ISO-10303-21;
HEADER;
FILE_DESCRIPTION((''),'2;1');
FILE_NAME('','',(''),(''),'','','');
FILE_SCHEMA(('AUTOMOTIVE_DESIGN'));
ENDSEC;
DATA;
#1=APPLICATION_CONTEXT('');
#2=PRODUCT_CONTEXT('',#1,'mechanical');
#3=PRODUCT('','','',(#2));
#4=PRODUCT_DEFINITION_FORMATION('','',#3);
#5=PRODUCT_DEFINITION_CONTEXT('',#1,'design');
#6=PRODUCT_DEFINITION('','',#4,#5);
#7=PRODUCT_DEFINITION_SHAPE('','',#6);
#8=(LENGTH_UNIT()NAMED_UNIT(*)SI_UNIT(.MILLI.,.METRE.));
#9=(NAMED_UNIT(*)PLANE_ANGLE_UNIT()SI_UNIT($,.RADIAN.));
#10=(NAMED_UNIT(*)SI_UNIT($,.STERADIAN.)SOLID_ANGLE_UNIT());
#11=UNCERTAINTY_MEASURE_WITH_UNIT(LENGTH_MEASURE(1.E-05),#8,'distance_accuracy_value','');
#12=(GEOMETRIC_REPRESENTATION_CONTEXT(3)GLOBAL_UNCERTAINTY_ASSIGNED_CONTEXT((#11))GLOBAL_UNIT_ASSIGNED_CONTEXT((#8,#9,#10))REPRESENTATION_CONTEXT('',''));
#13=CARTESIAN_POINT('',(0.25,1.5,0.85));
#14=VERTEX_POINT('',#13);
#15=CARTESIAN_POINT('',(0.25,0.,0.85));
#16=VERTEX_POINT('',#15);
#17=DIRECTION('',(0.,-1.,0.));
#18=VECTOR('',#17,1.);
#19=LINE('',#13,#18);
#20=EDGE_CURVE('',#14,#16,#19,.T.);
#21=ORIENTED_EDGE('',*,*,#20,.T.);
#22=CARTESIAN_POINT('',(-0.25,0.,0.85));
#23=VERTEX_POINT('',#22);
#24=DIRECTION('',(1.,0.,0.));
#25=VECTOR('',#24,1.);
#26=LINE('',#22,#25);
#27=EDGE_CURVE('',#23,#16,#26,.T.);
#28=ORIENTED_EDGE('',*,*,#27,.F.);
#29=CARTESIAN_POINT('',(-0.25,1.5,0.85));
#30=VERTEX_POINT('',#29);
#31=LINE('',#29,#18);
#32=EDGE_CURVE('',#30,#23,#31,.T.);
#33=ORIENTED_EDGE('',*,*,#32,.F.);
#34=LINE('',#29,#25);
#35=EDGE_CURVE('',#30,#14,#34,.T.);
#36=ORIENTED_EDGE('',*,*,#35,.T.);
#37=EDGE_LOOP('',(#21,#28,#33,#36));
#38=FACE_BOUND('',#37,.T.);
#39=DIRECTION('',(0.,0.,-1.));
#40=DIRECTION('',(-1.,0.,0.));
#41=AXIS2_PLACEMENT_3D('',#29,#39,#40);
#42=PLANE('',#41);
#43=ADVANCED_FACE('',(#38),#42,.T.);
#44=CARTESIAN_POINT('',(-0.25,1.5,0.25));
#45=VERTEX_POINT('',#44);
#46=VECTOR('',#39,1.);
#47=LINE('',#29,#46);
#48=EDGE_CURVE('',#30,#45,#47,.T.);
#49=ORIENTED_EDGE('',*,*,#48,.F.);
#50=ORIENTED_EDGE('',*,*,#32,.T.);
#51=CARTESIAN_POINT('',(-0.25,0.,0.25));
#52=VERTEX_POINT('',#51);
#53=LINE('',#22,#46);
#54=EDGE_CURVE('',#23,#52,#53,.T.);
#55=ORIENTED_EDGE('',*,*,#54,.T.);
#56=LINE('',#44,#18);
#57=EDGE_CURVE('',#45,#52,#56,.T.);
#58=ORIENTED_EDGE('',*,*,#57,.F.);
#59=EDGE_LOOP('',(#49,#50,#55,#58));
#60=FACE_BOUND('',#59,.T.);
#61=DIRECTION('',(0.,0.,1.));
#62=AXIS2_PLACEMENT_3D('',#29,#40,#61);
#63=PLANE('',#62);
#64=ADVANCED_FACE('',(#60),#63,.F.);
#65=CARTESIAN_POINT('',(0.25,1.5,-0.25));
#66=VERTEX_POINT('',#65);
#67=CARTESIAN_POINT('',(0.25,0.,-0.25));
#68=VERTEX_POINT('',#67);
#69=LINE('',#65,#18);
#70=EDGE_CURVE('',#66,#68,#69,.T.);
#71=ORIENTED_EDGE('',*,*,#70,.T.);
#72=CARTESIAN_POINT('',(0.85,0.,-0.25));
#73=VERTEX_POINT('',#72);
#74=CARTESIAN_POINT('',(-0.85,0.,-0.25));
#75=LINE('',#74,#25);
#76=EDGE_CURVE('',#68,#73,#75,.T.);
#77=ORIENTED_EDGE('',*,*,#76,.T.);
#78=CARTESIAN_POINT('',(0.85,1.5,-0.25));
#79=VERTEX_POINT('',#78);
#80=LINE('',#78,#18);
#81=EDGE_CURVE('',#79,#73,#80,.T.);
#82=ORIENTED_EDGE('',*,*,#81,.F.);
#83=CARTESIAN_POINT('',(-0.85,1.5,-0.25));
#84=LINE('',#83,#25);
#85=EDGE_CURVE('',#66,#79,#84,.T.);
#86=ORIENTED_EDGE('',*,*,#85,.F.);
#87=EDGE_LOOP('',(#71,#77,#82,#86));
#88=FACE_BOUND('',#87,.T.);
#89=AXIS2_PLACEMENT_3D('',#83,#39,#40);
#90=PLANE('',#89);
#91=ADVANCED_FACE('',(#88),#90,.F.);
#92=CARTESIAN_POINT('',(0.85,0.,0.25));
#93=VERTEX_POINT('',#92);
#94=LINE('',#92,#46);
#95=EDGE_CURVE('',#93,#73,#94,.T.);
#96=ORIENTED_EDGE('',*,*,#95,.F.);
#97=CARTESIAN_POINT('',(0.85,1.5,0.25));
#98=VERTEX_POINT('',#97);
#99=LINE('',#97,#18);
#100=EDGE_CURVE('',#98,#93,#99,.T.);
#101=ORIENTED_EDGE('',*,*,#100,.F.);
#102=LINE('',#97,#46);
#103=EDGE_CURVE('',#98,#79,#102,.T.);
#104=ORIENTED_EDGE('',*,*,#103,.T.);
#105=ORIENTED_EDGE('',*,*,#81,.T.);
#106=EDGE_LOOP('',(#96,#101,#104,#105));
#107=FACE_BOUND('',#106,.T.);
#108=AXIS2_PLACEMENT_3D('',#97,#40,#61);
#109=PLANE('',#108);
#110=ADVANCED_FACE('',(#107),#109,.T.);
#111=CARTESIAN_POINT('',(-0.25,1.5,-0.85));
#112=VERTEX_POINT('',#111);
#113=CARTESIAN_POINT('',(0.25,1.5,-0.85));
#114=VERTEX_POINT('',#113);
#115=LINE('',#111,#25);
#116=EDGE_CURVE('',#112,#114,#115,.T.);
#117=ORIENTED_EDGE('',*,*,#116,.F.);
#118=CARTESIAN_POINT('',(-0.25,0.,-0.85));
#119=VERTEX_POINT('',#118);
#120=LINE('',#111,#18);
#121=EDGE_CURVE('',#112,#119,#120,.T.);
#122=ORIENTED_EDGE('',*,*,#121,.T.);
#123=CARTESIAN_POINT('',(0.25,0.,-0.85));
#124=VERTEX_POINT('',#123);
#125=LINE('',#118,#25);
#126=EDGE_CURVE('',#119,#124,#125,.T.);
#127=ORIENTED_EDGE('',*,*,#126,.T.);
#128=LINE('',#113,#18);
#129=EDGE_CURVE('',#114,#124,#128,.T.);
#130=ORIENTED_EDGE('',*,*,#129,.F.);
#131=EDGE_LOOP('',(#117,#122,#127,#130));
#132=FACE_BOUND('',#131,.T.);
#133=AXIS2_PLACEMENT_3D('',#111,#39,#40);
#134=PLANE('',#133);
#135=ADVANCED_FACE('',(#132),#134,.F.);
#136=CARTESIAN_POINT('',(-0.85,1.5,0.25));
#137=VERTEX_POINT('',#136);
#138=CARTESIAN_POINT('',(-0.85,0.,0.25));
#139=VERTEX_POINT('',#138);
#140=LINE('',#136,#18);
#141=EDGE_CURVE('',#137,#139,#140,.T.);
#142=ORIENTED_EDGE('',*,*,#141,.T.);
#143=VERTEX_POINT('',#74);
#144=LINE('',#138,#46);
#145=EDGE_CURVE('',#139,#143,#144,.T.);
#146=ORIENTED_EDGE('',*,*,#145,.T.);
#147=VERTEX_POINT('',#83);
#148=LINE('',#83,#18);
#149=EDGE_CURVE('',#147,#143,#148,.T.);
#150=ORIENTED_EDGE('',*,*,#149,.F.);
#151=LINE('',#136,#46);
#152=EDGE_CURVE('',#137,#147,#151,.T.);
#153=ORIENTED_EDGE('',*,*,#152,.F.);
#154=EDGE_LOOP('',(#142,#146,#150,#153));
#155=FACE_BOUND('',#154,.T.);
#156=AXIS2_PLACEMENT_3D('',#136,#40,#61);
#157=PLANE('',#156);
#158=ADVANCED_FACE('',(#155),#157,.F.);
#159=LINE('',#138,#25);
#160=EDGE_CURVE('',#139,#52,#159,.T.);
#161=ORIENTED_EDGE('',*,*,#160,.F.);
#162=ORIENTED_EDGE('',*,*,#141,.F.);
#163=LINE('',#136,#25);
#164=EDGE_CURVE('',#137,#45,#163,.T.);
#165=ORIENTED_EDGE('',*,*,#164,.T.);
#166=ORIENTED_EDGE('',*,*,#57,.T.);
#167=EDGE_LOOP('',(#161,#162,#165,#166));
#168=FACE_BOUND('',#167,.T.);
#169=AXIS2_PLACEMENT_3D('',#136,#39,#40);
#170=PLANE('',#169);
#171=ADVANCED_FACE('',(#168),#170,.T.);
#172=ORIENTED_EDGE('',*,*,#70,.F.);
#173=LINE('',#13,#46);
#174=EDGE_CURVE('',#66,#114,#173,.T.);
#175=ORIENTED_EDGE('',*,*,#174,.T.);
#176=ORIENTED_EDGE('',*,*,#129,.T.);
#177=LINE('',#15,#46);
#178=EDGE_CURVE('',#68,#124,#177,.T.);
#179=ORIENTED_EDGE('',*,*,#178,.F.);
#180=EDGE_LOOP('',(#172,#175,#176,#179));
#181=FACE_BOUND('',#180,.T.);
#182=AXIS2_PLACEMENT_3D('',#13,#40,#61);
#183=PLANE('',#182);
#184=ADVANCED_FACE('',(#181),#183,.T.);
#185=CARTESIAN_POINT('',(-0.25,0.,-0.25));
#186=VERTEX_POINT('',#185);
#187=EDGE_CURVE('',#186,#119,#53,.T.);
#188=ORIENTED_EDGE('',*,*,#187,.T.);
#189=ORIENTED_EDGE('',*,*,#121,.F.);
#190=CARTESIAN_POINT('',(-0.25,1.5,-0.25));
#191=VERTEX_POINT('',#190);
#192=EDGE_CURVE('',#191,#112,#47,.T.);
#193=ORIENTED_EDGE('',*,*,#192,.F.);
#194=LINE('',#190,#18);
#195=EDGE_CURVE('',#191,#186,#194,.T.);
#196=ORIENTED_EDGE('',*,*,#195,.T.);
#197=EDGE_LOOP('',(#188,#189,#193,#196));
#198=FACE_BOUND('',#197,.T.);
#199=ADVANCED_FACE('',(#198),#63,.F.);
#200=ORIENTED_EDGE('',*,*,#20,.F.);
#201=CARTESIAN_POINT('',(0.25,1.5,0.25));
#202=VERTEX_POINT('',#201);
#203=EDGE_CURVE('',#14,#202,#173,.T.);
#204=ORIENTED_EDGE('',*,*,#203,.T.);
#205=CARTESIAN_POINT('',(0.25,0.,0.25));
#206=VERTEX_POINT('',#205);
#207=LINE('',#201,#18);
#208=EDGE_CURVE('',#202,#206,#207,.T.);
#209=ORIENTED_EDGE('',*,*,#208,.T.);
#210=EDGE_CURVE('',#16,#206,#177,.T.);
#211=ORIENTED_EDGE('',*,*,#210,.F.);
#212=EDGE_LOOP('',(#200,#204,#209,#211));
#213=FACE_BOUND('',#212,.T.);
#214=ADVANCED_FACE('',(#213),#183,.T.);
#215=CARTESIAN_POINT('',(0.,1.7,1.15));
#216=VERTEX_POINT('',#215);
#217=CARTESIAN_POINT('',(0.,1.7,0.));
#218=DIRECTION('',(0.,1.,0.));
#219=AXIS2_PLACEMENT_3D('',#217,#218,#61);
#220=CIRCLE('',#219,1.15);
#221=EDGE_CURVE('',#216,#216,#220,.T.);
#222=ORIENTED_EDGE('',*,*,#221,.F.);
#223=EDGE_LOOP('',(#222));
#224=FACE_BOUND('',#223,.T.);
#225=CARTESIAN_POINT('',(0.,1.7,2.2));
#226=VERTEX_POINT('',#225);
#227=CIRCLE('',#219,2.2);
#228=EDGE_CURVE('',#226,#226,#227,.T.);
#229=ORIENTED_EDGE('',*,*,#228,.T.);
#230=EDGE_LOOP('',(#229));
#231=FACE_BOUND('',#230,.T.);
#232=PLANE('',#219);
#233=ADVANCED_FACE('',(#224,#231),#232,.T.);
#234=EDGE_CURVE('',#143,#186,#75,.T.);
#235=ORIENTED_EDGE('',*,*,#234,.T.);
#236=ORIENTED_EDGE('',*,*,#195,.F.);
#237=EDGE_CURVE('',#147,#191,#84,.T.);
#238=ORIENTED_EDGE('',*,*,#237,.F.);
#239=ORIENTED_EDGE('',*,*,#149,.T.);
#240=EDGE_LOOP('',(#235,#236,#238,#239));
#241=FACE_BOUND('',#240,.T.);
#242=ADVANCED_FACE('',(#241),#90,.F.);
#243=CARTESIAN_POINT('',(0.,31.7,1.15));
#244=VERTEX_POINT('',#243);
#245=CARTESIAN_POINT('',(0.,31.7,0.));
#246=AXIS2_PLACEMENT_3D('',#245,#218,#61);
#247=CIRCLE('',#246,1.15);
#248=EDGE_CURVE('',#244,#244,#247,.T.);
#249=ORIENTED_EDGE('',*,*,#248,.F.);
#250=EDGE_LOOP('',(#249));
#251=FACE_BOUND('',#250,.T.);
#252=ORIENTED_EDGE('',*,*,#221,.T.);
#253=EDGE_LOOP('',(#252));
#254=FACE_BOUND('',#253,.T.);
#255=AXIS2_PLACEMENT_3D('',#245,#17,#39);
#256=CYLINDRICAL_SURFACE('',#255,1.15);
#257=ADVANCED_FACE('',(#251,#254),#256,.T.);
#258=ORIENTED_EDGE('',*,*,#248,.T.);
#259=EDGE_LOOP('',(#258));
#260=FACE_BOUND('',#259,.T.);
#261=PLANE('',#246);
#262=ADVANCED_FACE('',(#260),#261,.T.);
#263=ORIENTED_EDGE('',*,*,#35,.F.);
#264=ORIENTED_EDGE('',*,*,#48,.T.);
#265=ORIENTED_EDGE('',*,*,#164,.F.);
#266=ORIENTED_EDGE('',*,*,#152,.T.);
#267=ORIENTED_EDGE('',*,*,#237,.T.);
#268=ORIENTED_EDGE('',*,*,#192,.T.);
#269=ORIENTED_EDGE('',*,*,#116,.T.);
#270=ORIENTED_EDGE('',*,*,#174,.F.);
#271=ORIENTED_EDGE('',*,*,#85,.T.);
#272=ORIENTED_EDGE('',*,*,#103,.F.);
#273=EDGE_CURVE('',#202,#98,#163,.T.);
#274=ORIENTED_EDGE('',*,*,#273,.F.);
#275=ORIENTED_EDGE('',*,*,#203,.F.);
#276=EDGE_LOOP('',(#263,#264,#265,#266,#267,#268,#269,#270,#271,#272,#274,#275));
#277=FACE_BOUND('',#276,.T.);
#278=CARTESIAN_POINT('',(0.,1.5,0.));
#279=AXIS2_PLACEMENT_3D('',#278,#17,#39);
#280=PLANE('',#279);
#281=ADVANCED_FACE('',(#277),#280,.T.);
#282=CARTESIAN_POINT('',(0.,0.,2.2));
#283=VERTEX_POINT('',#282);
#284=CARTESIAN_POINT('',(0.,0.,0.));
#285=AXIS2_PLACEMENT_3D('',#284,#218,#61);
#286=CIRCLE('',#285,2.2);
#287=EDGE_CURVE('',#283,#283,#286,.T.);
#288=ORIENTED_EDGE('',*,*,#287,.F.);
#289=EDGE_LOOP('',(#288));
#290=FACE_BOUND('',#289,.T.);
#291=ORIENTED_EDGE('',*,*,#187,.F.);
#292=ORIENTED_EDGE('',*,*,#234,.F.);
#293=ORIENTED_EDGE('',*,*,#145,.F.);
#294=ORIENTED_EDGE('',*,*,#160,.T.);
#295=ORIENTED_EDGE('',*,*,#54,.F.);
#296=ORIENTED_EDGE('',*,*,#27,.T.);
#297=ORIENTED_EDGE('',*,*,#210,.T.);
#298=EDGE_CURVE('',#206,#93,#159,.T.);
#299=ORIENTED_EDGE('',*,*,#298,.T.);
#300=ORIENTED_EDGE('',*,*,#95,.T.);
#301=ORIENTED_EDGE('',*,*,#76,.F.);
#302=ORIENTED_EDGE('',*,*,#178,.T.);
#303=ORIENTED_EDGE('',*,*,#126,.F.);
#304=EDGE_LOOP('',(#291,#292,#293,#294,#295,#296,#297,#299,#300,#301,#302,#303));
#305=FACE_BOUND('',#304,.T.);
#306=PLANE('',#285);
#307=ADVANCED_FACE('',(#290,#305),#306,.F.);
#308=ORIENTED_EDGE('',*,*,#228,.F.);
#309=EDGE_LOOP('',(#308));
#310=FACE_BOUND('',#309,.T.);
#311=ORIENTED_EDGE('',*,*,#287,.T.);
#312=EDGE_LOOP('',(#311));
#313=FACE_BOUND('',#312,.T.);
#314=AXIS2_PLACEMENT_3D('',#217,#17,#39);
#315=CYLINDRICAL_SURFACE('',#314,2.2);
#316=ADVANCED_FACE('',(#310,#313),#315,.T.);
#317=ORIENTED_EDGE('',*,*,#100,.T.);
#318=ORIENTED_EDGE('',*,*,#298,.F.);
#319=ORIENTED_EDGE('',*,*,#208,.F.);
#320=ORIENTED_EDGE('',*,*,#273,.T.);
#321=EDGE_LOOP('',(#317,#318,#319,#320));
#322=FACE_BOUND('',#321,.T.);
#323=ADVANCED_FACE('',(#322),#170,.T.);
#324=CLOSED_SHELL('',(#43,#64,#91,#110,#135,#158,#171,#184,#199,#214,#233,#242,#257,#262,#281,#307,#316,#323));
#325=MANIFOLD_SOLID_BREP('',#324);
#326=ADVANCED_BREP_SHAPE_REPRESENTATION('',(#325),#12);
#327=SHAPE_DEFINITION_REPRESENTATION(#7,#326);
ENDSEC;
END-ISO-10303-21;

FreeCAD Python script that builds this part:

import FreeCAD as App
import Part
import Sketcher

doc = App.newDocument("Part")
body = doc.addObject("PartDesign::Body", "Body")

# Sketch on XZ plane
sketch1 = doc.addObject("Sketcher::SketchObject", "Sketch")
body.addObject(sketch1)
sketch1.AttachmentSupport = (doc.XZ_Plane, [""])
sketch1.MapMode = "FlatFace"
sketch1.addGeometry(Part.Circle(App.Vector(0, 0, 0), App.Vector(0, 0, 1), 2.2), False)
sketch1.addConstraint([
    Sketcher.Constraint("Coincident", 0, 3, -1, 1),
    Sketcher.Constraint("Diameter", 0, 4.4),
])
pad1 = doc.addObject("PartDesign::Pad", "Pad")
body.addObject(pad1)
pad1.Profile = sketch1
pad1.Length = 1.7
pad1.Reversed = True

# Sketch on XZ plane
sketch2 = doc.addObject("Sketcher::SketchObject", "Sketch001")
body.addObject(sketch2)
sketch2.AttachmentSupport = (doc.XZ_Plane, [""])
sketch2.MapMode = "FlatFace"
sketch2.AttachmentOffset = App.Placement(App.Vector(0, 0, -1.7), App.Rotation())
sketch2.addGeometry(Part.Circle(App.Vector(0, 0, 0), App.Vector(0, 0, 1), 1.1), False)
sketch2.addConstraint([
    Sketcher.Constraint("Coincident", 0, 3, -1, 1),
    Sketcher.Constraint("Diameter", 0, 2.3),
])
pad2 = doc.addObject("PartDesign::Pad", "Pad001")
body.addObject(pad2)
pad2.Profile = sketch2
pad2.Length = 30
pad2.Reversed = True

# Sketch on XZ plane
sketch3 = doc.addObject("Sketcher::SketchObject", "Sketch002")
body.addObject(sketch3)
sketch3.AttachmentSupport = (doc.XZ_Plane, [""])
sketch3.MapMode = "FlatFace"
sketch3.addGeometry([
    Part.LineSegment(App.Vector(-0.8, -0.2, 0), App.Vector(-0.8, 0.2, 0)),  # 0
    Part.LineSegment(App.Vector(-0.8, 0.2, 0), App.Vector(-0.2, 0.2, 0)),  # 1
    Part.LineSegment(App.Vector(-0.2, 0.2, 0), App.Vector(-0.2, 0.8, 0)),  # 2
    Part.LineSegment(App.Vector(-0.2, 0.8, 0), App.Vector(0.2, 0.8, 0)),  # 3
    Part.LineSegment(App.Vector(0.2, 0.8, 0), App.Vector(0.2, 0.2, 0)),  # 4
    Part.LineSegment(App.Vector(0.2, 0.2, 0), App.Vector(0.8, 0.2, 0)),  # 5
    Part.LineSegment(App.Vector(0.8, 0.2, 0), App.Vector(0.8, -0.2, 0)),  # 6
    Part.LineSegment(App.Vector(0.8, -0.2, 0), App.Vector(0.2, -0.2, 0)),  # 7
    Part.LineSegment(App.Vector(0.2, -0.2, 0), App.Vector(0.2, -0.8, 0)),  # 8
    Part.LineSegment(App.Vector(0.2, -0.8, 0), App.Vector(-0.2, -0.8, 0)),  # 9
    Part.LineSegment(App.Vector(-0.2, -0.8, 0), App.Vector(-0.2, -0.2, 0)),  # 10
    Part.LineSegment(App.Vector(-0.2, -0.2, 0), App.Vector(-0.8, -0.2, 0)),  # 11
], False)
sketch3.addConstraint([
    Sketcher.Constraint("Coincident", 0, 2, 1, 1),
    Sketcher.Constraint("Coincident", 1, 2, 2, 1),
    Sketcher.Constraint("Coincident", 2, 2, 3, 1),
    Sketcher.Constraint("Coincident", 3, 2, 4, 1),
    Sketcher.Constraint("Coincident", 4, 2, 5, 1),
    Sketcher.Constraint("Coincident", 5, 2, 6, 1),
    Sketcher.Constraint("Coincident", 6, 2, 7, 1),
    Sketcher.Constraint("Coincident", 7, 2, 8, 1),
    Sketcher.Constraint("Coincident", 8, 2, 9, 1),
    Sketcher.Constraint("Coincident", 9, 2, 10, 1),
    Sketcher.Constraint("Coincident", 10, 2, 11, 1),
    Sketcher.Constraint("Coincident", 11, 2, 0, 1),
    Sketcher.Constraint("Vertical", 0),
    Sketcher.Constraint("Horizontal", 1),
    Sketcher.Constraint("Vertical", 2),
    Sketcher.Constraint("Horizontal", 3),
    Sketcher.Constraint("Vertical", 4),
    Sketcher.Constraint("Horizontal", 5),
    Sketcher.Constraint("Vertical", 6),
    Sketcher.Constraint("Horizontal", 7),
    Sketcher.Constraint("Vertical", 8),
    Sketcher.Constraint("Horizontal", 9),
    Sketcher.Constraint("Vertical", 10),
    Sketcher.Constraint("Horizontal", 11),
    Sketcher.Constraint("Symmetric", 0, 2, 6, 2, -1, 1),
    Sketcher.Constraint("Symmetric", 2, 2, 8, 2, -1, 1),
    Sketcher.Constraint("Symmetric", 4, 2, 10, 2, -1, 1),
    Sketcher.Constraint("Symmetric", 1, 2, 4, 2, -2),
    Sketcher.Constraint("Equal", 9, 0),
    Sketcher.Constraint("Equal", 11, 2),
    Sketcher.Constraint("DistanceX", 1, 1, 1, 2, 0.6),
    Sketcher.Constraint("DistanceX", 3, 1, 3, 2, 0.5),
])
pocket1 = doc.addObject("PartDesign::Pocket", "Pocket")
body.addObject(pocket1)
pocket1.Profile = sketch3
pocket1.Length = 1.5

doc.recompute()
